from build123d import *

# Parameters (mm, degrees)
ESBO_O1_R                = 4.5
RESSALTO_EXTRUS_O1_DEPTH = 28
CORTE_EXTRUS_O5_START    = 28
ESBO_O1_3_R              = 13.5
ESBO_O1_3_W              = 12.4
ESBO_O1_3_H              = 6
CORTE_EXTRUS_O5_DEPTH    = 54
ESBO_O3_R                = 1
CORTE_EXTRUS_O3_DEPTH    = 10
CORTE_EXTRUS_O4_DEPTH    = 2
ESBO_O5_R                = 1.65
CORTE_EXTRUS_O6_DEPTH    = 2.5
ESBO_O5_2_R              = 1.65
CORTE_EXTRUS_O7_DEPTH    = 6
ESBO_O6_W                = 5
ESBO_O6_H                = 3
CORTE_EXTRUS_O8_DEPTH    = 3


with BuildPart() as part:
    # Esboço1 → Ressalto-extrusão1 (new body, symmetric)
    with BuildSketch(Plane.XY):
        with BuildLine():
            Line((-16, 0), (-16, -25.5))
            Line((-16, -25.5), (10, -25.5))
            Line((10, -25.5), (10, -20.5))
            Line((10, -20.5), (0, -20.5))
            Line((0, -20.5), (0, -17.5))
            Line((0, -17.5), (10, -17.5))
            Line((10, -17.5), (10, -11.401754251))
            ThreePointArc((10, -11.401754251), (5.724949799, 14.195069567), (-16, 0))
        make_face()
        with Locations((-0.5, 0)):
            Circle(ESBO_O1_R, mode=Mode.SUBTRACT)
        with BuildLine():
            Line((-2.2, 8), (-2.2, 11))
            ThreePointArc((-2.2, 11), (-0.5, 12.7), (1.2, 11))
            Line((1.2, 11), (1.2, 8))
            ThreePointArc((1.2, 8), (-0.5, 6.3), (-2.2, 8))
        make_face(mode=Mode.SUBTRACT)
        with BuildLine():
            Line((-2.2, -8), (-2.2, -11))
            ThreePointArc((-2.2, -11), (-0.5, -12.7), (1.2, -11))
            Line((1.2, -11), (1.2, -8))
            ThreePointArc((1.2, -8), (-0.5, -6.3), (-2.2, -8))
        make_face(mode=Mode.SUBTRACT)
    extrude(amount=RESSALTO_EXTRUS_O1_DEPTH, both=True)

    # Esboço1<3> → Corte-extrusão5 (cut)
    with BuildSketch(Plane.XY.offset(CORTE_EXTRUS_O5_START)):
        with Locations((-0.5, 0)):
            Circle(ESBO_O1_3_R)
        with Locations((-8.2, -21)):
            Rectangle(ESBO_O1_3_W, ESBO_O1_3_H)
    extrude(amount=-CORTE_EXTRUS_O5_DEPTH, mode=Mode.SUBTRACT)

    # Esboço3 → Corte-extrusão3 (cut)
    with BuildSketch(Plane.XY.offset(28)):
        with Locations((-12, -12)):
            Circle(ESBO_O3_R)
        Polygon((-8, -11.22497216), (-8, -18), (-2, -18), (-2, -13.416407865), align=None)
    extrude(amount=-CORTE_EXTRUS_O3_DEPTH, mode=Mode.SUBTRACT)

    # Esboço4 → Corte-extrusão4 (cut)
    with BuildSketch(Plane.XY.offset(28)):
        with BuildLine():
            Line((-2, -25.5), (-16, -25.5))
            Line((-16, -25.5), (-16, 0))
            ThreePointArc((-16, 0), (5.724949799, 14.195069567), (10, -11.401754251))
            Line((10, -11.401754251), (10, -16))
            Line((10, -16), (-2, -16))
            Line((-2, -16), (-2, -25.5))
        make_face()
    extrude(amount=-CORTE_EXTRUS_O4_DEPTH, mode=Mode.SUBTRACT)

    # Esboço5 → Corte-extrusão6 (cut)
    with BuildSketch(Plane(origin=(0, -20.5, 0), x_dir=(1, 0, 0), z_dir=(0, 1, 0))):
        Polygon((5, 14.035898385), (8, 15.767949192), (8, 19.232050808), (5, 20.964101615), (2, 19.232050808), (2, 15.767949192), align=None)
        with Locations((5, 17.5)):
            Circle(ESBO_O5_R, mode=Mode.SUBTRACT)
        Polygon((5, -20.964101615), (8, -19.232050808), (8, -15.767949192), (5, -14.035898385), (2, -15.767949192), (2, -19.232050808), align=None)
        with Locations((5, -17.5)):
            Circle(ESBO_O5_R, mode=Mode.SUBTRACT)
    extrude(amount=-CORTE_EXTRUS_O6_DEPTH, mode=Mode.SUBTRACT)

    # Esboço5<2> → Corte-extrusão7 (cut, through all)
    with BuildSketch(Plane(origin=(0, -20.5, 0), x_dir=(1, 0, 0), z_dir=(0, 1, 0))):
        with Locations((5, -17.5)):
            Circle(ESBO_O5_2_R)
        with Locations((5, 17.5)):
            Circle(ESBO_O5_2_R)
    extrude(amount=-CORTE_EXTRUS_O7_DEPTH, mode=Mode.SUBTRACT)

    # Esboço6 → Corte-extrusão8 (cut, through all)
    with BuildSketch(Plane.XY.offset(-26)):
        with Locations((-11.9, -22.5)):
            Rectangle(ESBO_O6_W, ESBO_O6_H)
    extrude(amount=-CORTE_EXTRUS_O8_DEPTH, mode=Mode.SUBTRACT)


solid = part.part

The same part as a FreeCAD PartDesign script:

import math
import FreeCAD as App
import Part
import Sketcher

V = App.Vector
Q = App.Units.Quantity


def add_polygon(sketch, points):
    """Adds a closed chain of lines whose ends are joined by coincident constraints."""
    first, n = sketch.GeometryCount, len(points)
    for a, b in zip(points, points[1:] + points[:1]):
        sketch.addGeometry(Part.LineSegment(App.Vector(*a, 0), App.Vector(*b, 0)), False)
    for i in range(n):
        sketch.addConstraint(Sketcher.Constraint("Coincident", first + i, 2, first + (i + 1) % n, 1))

doc = App.newDocument("Part")
body = doc.addObject("PartDesign::Body", "Body")

# Sketch on XY plane
sketch1 = doc.addObject("Sketcher::SketchObject", "Sketch")
body.addObject(sketch1)
sketch1.AttachmentSupport = (doc.XY_Plane, [""])
sketch1.MapMode = "FlatFace"
sketch1.addGeometry(Part.LineSegment(V(-16, 0, 0), V(-16, -25.5, 0)), False)
sketch1.addGeometry(Part.LineSegment(V(-16, -25.5, 0), V(10, -25.5, 0)), False)
sketch1.addGeometry(Part.LineSegment(V(10, -25.5, 0), V(10, -20.5, 0)), False)
sketch1.addGeometry(Part.LineSegment(V(10, -20.5, 0), V(0, -20.5, 0)), False)
sketch1.addGeometry(Part.LineSegment(V(0, -20.5, 0), V(0, -17.5, 0)), False)
sketch1.addGeometry(Part.LineSegment(V(0, -17.5, 0), V(10, -17.5, 0)), False)
sketch1.addGeometry(Part.LineSegment(V(10, -17.5, 0), V(10, -11.401754, 0)), False)
sketch1.addGeometry(Part.ArcOfCircle(Part.Circle(V(-0.5, 0, 0), V(0, 0, 1), 15.5), math.radians(-47.35769), math.radians(180)), False)
sketch1.addGeometry(Part.LineSegment(V(-2.2, -11, 0), V(-2.2, -8, 0)), False)
sketch1.addGeometry(Part.ArcOfCircle(Part.Circle(V(-0.5, -8, 0), V(0, 0, 1), 1.7), math.radians(0), math.radians(180)), False)
sketch1.addGeometry(Part.LineSegment(V(1.2, -8, 0), V(1.2, -11, 0)), False)
sketch1.addGeometry(Part.ArcOfCircle(Part.Circle(V(-0.5, -11, 0), V(0, 0, 1), 1.7), math.radians(180), math.radians(360)), False)
sketch1.addGeometry(Part.Circle(V(-0.5, 0, 0), V(0, 0, 1), 4.5), False)
sketch1.addGeometry(Part.ArcOfCircle(Part.Circle(V(-0.5, 8, 0), V(0, 0, 1), 1.7), math.radians(180), math.radians(360)), False)
sketch1.addGeometry(Part.LineSegment(V(-2.2, 8, 0), V(-2.2, 11, 0)), False)
sketch1.addGeometry(Part.ArcOfCircle(Part.Circle(V(-0.5, 11, 0), V(0, 0, 1), 1.7), math.radians(0), math.radians(180)), False)
sketch1.addGeometry(Part.LineSegment(V(1.2, 11, 0), V(1.2, 8, 0)), False)
sketch1.addConstraint(Sketcher.Constraint("Coincident", 0, 2, 1, 1))
sketch1.addConstraint(Sketcher.Constraint("Coincident", 1, 2, 2, 1))
sketch1.addConstraint(Sketcher.Constraint("Coincident", 2, 2, 3, 1))
sketch1.addConstraint(Sketcher.Constraint("Coincident", 3, 2, 4, 1))
sketch1.addConstraint(Sketcher.Constraint("Coincident", 4, 2, 5, 1))
sketch1.addConstraint(Sketcher.Constraint("Coincident", 5, 2, 6, 1))
sketch1.addConstraint(Sketcher.Constraint("Coincident", 6, 2, 7, 1))
sketch1.addConstraint(Sketcher.Constraint("Tangent", 7, 2, 0, 1))
sketch1.addConstraint(Sketcher.Constraint("Tangent", 8, 2, 9, 2))
sketch1.addConstraint(Sketcher.Constraint("Tangent", 9, 1, 10, 1))
sketch1.addConstraint(Sketcher.Constraint("Tangent", 10, 2, 11, 2))
sketch1.addConstraint(Sketcher.Constraint("Tangent", 11, 1, 8, 1))
sketch1.addConstraint(Sketcher.Constraint("Tangent", 13, 1, 14, 1))
sketch1.addConstraint(Sketcher.Constraint("Tangent", 14, 2, 15, 2))
sketch1.addConstraint(Sketcher.Constraint("Tangent", 15, 1, 16, 1))
sketch1.addConstraint(Sketcher.Constraint("Tangent", 16, 2, 13, 2))
sketch1.addConstraint(Sketcher.Constraint("Vertical", 0))
sketch1.addConstraint(Sketcher.Constraint("Horizontal", 1))
sketch1.addConstraint(Sketcher.Constraint("Vertical", 2))
sketch1.addConstraint(Sketcher.Constraint("Horizontal", 3))
sketch1.addConstraint(Sketcher.Constraint("Vertical", 4))
sketch1.addConstraint(Sketcher.Constraint("Horizontal", 5))
sketch1.addConstraint(Sketcher.Constraint("Vertical", 6))
sketch1.addConstraint(Sketcher.Constraint("Vertical", 8))
sketch1.addConstraint(Sketcher.Constraint("Vertical", 10))
sketch1.addConstraint(Sketcher.Constraint("Vertical", 14))
sketch1.addConstraint(Sketcher.Constraint("Vertical", 16))
sketch1.addConstraint(Sketcher.Constraint("Coincident", 12, 3, 7, 3))
sketch1.addConstraint(Sketcher.Constraint("Equal", 11, 13))
sketch1.addConstraint(Sketcher.Constraint("Symmetric", 9, 3, 13, 3, -1))
sketch1.addConstraint(Sketcher.Constraint("PointOnObject", 7, 3, -1))
sketch1.addConstraint(Sketcher.Constraint("PointOnObject", 3, 2, -2))
sketch1.addConstraint(Sketcher.Constraint("Vertical", 7, 3, 9, 3))
sketch1.addConstraint(Sketcher.Constraint("Vertical", 2, 2, 5, 2))
sketch1.addConstraint(Sketcher.Constraint("Equal", 4, 8))
sketch1.addConstraint(Sketcher.Constraint("Equal", 10, 14))
sketch1.addConstraint(Sketcher.Constraint("Diameter", 12, Q("9 mm")))
sketch1.addConstraint(Sketcher.Constraint("Radius", 7, Q("15.5 mm")))
sketch1.addConstraint(Sketcher.Constraint("Radius", 9, Q("1.7 mm")))
sketch1.addConstraint(Sketcher.Constraint("DistanceX", 1, 1, 1, 2, Q("26 mm")))
sketch1.addConstraint(Sketcher.Constraint("DistanceX", 3, 2, 3, 1, Q("10 mm")))
sketch1.addConstraint(Sketcher.Constraint("DistanceY", 2, 1, 2, 2, Q("5 mm")))
sketch1.addConstraint(Sketcher.Constraint("DistanceY", 4, 1, 4, 2, Q("3 mm")))
sketch1.addConstraint(Sketcher.Constraint("DistanceY", 0, 2, 0, 1, Q("25.5 mm")))
sketch1.addConstraint(Sketcher.Constraint("DistanceY", 9, 3, -1, 1, Q("8 mm")))
pad1 = doc.addObject("PartDesign::Pad", "Pad")
body.addObject(pad1)
pad1.Profile = sketch1
pad1.Length = 56
pad1.Midplane = True

# Sketch on XY plane
sketch2 = doc.addObject("Sketcher::SketchObject", "Sketch001")
body.addObject(sketch2)
sketch2.AttachmentSupport = (doc.XY_Plane, [""])
sketch2.MapMode = "FlatFace"
sketch2.AttachmentOffset = App.Placement(V(0, 0, 28), App.Rotation())
sketch2.addGeometry(Part.Circle(V(-0.5, 0, 0), V(0, 0, 1), 13.5), False)  # 0
add_polygon(sketch2, [(-14.4, -18), (-14.4, -24), (-2, -24), (-2, -18)])  # lines 1-4
sketch2.addConstraint(Sketcher.Constraint("Vertical", 1))
sketch2.addConstraint(Sketcher.Constraint("Horizontal", 2))
sketch2.addConstraint(Sketcher.Constraint("Vertical", 3))
sketch2.addConstraint(Sketcher.Constraint("Horizontal", 4))
sketch2.addConstraint(Sketcher.Constraint("PointOnObject", 0, 3, -1))
sketch2.addConstraint(Sketcher.Constraint("Diameter", 0, Q("27 mm")))
sketch2.addConstraint(Sketcher.Constraint("DistanceY", 1, 2, 1, 1, Q("6 mm")))
sketch2.addConstraint(Sketcher.Constraint("DistanceX", 2, 1, 2, 2, Q("12.4 mm")))
sketch2.addConstraint(Sketcher.Constraint("DistanceY", 1, 2, -1, 1, Q("24 mm")))
sketch2.addConstraint(Sketcher.Constraint("DistanceX", 2, 2, -1, 1, Q("2 mm")))
sketch2.addConstraint(Sketcher.Constraint("DistanceX", 0, 3, -1, 1, Q("0.5 mm")))
pocket1 = doc.addObject("PartDesign::Pocket", "Pocket")
body.addObject(pocket1)
pocket1.Profile = sketch2
pocket1.Length = 54

# Sketch on XY plane
sketch3 = doc.addObject("Sketcher::SketchObject", "Sketch002")
body.addObject(sketch3)
sketch3.AttachmentSupport = (doc.XY_Plane, [""])
sketch3.MapMode = "FlatFace"
sketch3.AttachmentOffset = App.Placement(V(0, 0, 28), App.Rotation())
sketch3.addGeometry(Part.Circle(V(-12, -12, 0), V(0, 0, 1), 1), False)  # 0
add_polygon(sketch3, [(-8, -11.224972), (-8, -18), (-2, -18), (-2, -13.416408)])  # lines 1-4
sketch3.addConstraint(Sketcher.Constraint("Vertical", 1))
sketch3.addConstraint(Sketcher.Constraint("Horizontal", 2))
sketch3.addConstraint(Sketcher.Constraint("Vertical", 3))
sketch3.addConstraint(Sketcher.Constraint("Diameter", 0, Q("2 mm")))
sketch3.addConstraint(Sketcher.Constraint("DistanceX", 2, 1, 2, 2, Q("6 mm")))
sketch3.addConstraint(Sketcher.Constraint("DistanceX", 0, 3, -1, 1, Q("12 mm")))
sketch3.addConstraint(Sketcher.Constraint("DistanceY", 0, 3, -1, 1, Q("12 mm")))
sketch3.addConstraint(Sketcher.Constraint("DistanceX", 1, 2, -1, 1, Q("8 mm")))
sketch3.addConstraint(Sketcher.Constraint("DistanceY", 1, 2, -1, 1, Q("18 mm")))
sketch3.addConstraint(Sketcher.Constraint("DistanceY", 1, 2, 1, 1, Q("6.775028 mm")))
sketch3.addConstraint(Sketcher.Constraint("DistanceY", 3, 1, 3, 2, Q("4.583592 mm")))
pocket2 = doc.addObject("PartDesign::Pocket", "Pocket001")
body.addObject(pocket2)
pocket2.Profile = sketch3
pocket2.Length = 10

# Sketch on XY plane
sketch4 = doc.addObject("Sketcher::SketchObject", "Sketch003")
body.addObject(sketch4)
sketch4.AttachmentSupport = (doc.XY_Plane, [""])
sketch4.MapMode = "FlatFace"
sketch4.AttachmentOffset = App.Placement(V(0, 0, 28), App.Rotation())
sketch4.addGeometry(Part.LineSegment(V(-16, -25.5, 0), V(-2, -25.5, 0)), False)
sketch4.addGeometry(Part.LineSegment(V(-2, -25.5, 0), V(-2, -16, 0)), False)
sketch4.addGeometry(Part.LineSegment(V(-2, -16, 0), V(10, -16, 0)), False)
sketch4.addGeometry(Part.LineSegment(V(10, -16, 0), V(10, -11.401754, 0)), False)
sketch4.addGeometry(Part.ArcOfCircle(Part.Circle(V(-0.5, 0, 0), V(0, 0, 1), 15.5), math.radians(-47.35769), math.radians(180)), False)
sketch4.addGeometry(Part.LineSegment(V(-16, 0, 0), V(-16, -25.5, 0)), False)
sketch4.addConstraint(Sketcher.Constraint("Coincident", 0, 2, 1, 1))
sketch4.addConstraint(Sketcher.Constraint("Coincident", 1, 2, 2, 1))
sketch4.addConstraint(Sketcher.Constraint("Coincident", 2, 2, 3, 1))
sketch4.addConstraint(Sketcher.Constraint("Coincident", 3, 2, 4, 1))
sketch4.addConstraint(Sketcher.Constraint("Tangent", 4, 2, 5, 1))
sketch4.addConstraint(Sketcher.Constraint("Coincident", 5, 2, 0, 1))
sketch4.addConstraint(Sketcher.Constraint("Horizontal", 0))
sketch4.addConstraint(Sketcher.Constraint("Vertical", 1))
sketch4.addConstraint(Sketcher.Constraint("Horizontal", 2))
sketch4.addConstraint(Sketcher.Constraint("Vertical", 3))
sketch4.addConstraint(Sketcher.Constraint("Vertical", 5))
sketch4.addConstraint(Sketcher.Constraint("PointOnObject", 4, 3, -1))
sketch4.addConstraint(Sketcher.Constraint("Radius", 4, Q("15.5 mm")))
sketch4.addConstraint(Sketcher.Constraint("DistanceX", 0, 1, 0, 2, Q("14 mm")))
sketch4.addConstraint(Sketcher.Constraint("DistanceX", 2, 1, 2, 2, Q("12 mm")))
sketch4.addConstraint(Sketcher.Constraint("DistanceY", 1, 1, 1, 2, Q("9.5 mm")))
sketch4.addConstraint(Sketcher.Constraint("DistanceY", 5, 2, 5, 1, Q("25.5 mm")))
sketch4.addConstraint(Sketcher.Constraint("DistanceX", 0, 2, -1, 1, Q("2 mm")))
pocket3 = doc.addObject("PartDesign::Pocket", "Pocket002")
body.addObject(pocket3)
pocket3.Profile = sketch4
pocket3.Length = 2

# Sketch on XZ plane
sketch5 = doc.addObject("Sketcher::SketchObject", "Sketch004")
body.addObject(sketch5)
sketch5.AttachmentSupport = (doc.XZ_Plane, [""])
sketch5.MapMode = "FlatFace"
sketch5.AttachmentOffset = App.Placement(V(0, 0, 20.5), App.Rotation())
add_polygon(sketch5, [(5, -14.035898), (8, -15.767949), (8, -19.232051), (5, -20.964102), (2, -19.232051), (2, -15.767949)])  # lines 0-5
sketch5.addGeometry(Part.Circle(V(5, -17.5, 0), V(0, 0, 1), 1.65), False)  # 6
add_polygon(sketch5, [(5, 20.964102), (8, 19.232051), (8, 15.767949), (5, 14.035898), (2, 15.767949), (2, 19.232051)])  # lines 7-12
sketch5.addGeometry(Part.Circle(V(5, 17.5, 0), V(0, 0, 1), 1.65), False)  # 13
sketch5.addConstraint(Sketcher.Constraint("Vertical", 1))
sketch5.addConstraint(Sketcher.Constraint("Vertical", 4))
sketch5.addConstraint(Sketcher.Constraint("Vertical", 8))
sketch5.addConstraint(Sketcher.Constraint("Vertical", 11))
sketch5.addConstraint(Sketcher.Constraint("Equal", 6, 13))
sketch5.addConstraint(Sketcher.Constraint("Symmetric", 6, 3, 13, 3, -1))
sketch5.addConstraint(Sketcher.Constraint("Symmetric", 1, 2, 7, 2, -1))
sketch5.addConstraint(Sketcher.Constraint("Symmetric", 5, 2, 9, 2, -1))
sketch5.addConstraint(Sketcher.Constraint("Symmetric", 4, 2, 10, 2, -1))
sketch5.addConstraint(Sketcher.Constraint("Symmetric", 2, 2, 12, 2, -1))
sketch5.addConstraint(Sketcher.Constraint("Parallel", 0, 3))
sketch5.addConstraint(Sketcher.Constraint("Parallel", 2, 5))
sketch5.addConstraint(Sketcher.Constraint("Parallel", 3, 7))
sketch5.addConstraint(Sketcher.Constraint("Parallel", 5, 9))
sketch5.addConstraint(Sketcher.Constraint("Parallel", 9, 12))
sketch5.addConstraint(Sketcher.Constraint("Horizontal", 1, 2, 3, 2))
sketch5.addConstraint(Sketcher.Constraint("Horizontal", 0, 2, 4, 2))
sketch5.addConstraint(Sketcher.Constraint("Vertical", 13, 3, 2, 2))
sketch5.addConstraint(Sketcher.Constraint("Diameter", 6, Q("3.3 mm")))
sketch5.addConstraint(Sketcher.Constraint("Angle", 0, Q("-30 deg")))
sketch5.addConstraint(Sketcher.Constraint("DistanceX", -1, 1, 6, 3, Q("5 mm")))
sketch5.addConstraint(Sketcher.Constraint("DistanceX", -1, 1, 0, 2, Q("8 mm")))
sketch5.addConstraint(Sketcher.Constraint("DistanceY", 6, 3, 13, 3, Q("35 mm")))
sketch5.addConstraint(Sketcher.Constraint("DistanceY", 0, 2, 7, 2, Q("35 mm")))
sketch5.addConstraint(Sketcher.Constraint("DistanceY", 1, 2, 1, 1, Q("3.464102 mm")))
pocket4 = doc.addObject("PartDesign::Pocket", "Pocket003")
body.addObject(pocket4)
pocket4.Profile = sketch5
pocket4.Length = 2.5
pocket4.Reversed = True

# Sketch on XZ plane
sketch6 = doc.addObject("Sketcher::SketchObject", "Sketch005")
body.addObject(sketch6)
sketch6.AttachmentSupport = (doc.XZ_Plane, [""])
sketch6.MapMode = "FlatFace"
sketch6.AttachmentOffset = App.Placement(V(0, 0, 20.5), App.Rotation())
sketch6.addGeometry(Part.Circle(V(5, 17.5, 0), V(0, 0, 1), 1.65), False)
sketch6.addGeometry(Part.Circle(V(5, -17.5, 0), V(0, 0, 1), 1.65), False)
sketch6.addConstraint(Sketcher.Constraint("Equal", 0, 1))
sketch6.addConstraint(Sketcher.Constraint("Symmetric", 0, 3, 1, 3, -1))
sketch6.addConstraint(Sketcher.Constraint("Diameter", 0, Q("3.3 mm")))
sketch6.addConstraint(Sketcher.Constraint("DistanceX", -1, 1, 0, 3, Q("5 mm")))
sketch6.addConstraint(Sketcher.Constraint("DistanceY", 1, 3, 0, 3, Q("35 mm")))
pocket5 = doc.addObject("PartDesign::Pocket", "Pocket004")
body.addObject(pocket5)
pocket5.Profile = sketch6
pocket5.Type = "ThroughAll"
pocket5.Reversed = True

# Sketch on XY plane
sketch7 = doc.addObject("Sketcher::SketchObject", "Sketch006")
body.addObject(sketch7)
sketch7.AttachmentSupport = (doc.XY_Plane, [""])
sketch7.MapMode = "FlatFace"
sketch7.AttachmentOffset = App.Placement(V(0, 0, -26), App.Rotation())
add_polygon(sketch7, [(-14.4, -21), (-14.4, -24), (-9.4, -24), (-9.4, -21)])  # lines 0-3
sketch7.addConstraint(Sketcher.Constraint("Vertical", 0))
sketch7.addConstraint(Sketcher.Constraint("Horizontal", 1))
sketch7.addConstraint(Sketcher.Constraint("Vertical", 2))
sketch7.addConstraint(Sketcher.Constraint("Horizontal", 3))
sketch7.addConstraint(Sketcher.Constraint("DistanceX", 1, 1, 1, 2, Q("5 mm")))
sketch7.addConstraint(Sketcher.Constraint("DistanceY", 0, 2, 0, 1, Q("3 mm")))
sketch7.addConstraint(Sketcher.Constraint("DistanceY", 0, 2, -1, 1, Q("24 mm")))
sketch7.addConstraint(Sketcher.Constraint("DistanceX", 0, 2, -1, 1, Q("14.4 mm")))
pocket6 = doc.addObject("PartDesign::Pocket", "Pocket005")
body.addObject(pocket6)
pocket6.Profile = sketch7
pocket6.Type = "ThroughAll"

doc.recompute()
